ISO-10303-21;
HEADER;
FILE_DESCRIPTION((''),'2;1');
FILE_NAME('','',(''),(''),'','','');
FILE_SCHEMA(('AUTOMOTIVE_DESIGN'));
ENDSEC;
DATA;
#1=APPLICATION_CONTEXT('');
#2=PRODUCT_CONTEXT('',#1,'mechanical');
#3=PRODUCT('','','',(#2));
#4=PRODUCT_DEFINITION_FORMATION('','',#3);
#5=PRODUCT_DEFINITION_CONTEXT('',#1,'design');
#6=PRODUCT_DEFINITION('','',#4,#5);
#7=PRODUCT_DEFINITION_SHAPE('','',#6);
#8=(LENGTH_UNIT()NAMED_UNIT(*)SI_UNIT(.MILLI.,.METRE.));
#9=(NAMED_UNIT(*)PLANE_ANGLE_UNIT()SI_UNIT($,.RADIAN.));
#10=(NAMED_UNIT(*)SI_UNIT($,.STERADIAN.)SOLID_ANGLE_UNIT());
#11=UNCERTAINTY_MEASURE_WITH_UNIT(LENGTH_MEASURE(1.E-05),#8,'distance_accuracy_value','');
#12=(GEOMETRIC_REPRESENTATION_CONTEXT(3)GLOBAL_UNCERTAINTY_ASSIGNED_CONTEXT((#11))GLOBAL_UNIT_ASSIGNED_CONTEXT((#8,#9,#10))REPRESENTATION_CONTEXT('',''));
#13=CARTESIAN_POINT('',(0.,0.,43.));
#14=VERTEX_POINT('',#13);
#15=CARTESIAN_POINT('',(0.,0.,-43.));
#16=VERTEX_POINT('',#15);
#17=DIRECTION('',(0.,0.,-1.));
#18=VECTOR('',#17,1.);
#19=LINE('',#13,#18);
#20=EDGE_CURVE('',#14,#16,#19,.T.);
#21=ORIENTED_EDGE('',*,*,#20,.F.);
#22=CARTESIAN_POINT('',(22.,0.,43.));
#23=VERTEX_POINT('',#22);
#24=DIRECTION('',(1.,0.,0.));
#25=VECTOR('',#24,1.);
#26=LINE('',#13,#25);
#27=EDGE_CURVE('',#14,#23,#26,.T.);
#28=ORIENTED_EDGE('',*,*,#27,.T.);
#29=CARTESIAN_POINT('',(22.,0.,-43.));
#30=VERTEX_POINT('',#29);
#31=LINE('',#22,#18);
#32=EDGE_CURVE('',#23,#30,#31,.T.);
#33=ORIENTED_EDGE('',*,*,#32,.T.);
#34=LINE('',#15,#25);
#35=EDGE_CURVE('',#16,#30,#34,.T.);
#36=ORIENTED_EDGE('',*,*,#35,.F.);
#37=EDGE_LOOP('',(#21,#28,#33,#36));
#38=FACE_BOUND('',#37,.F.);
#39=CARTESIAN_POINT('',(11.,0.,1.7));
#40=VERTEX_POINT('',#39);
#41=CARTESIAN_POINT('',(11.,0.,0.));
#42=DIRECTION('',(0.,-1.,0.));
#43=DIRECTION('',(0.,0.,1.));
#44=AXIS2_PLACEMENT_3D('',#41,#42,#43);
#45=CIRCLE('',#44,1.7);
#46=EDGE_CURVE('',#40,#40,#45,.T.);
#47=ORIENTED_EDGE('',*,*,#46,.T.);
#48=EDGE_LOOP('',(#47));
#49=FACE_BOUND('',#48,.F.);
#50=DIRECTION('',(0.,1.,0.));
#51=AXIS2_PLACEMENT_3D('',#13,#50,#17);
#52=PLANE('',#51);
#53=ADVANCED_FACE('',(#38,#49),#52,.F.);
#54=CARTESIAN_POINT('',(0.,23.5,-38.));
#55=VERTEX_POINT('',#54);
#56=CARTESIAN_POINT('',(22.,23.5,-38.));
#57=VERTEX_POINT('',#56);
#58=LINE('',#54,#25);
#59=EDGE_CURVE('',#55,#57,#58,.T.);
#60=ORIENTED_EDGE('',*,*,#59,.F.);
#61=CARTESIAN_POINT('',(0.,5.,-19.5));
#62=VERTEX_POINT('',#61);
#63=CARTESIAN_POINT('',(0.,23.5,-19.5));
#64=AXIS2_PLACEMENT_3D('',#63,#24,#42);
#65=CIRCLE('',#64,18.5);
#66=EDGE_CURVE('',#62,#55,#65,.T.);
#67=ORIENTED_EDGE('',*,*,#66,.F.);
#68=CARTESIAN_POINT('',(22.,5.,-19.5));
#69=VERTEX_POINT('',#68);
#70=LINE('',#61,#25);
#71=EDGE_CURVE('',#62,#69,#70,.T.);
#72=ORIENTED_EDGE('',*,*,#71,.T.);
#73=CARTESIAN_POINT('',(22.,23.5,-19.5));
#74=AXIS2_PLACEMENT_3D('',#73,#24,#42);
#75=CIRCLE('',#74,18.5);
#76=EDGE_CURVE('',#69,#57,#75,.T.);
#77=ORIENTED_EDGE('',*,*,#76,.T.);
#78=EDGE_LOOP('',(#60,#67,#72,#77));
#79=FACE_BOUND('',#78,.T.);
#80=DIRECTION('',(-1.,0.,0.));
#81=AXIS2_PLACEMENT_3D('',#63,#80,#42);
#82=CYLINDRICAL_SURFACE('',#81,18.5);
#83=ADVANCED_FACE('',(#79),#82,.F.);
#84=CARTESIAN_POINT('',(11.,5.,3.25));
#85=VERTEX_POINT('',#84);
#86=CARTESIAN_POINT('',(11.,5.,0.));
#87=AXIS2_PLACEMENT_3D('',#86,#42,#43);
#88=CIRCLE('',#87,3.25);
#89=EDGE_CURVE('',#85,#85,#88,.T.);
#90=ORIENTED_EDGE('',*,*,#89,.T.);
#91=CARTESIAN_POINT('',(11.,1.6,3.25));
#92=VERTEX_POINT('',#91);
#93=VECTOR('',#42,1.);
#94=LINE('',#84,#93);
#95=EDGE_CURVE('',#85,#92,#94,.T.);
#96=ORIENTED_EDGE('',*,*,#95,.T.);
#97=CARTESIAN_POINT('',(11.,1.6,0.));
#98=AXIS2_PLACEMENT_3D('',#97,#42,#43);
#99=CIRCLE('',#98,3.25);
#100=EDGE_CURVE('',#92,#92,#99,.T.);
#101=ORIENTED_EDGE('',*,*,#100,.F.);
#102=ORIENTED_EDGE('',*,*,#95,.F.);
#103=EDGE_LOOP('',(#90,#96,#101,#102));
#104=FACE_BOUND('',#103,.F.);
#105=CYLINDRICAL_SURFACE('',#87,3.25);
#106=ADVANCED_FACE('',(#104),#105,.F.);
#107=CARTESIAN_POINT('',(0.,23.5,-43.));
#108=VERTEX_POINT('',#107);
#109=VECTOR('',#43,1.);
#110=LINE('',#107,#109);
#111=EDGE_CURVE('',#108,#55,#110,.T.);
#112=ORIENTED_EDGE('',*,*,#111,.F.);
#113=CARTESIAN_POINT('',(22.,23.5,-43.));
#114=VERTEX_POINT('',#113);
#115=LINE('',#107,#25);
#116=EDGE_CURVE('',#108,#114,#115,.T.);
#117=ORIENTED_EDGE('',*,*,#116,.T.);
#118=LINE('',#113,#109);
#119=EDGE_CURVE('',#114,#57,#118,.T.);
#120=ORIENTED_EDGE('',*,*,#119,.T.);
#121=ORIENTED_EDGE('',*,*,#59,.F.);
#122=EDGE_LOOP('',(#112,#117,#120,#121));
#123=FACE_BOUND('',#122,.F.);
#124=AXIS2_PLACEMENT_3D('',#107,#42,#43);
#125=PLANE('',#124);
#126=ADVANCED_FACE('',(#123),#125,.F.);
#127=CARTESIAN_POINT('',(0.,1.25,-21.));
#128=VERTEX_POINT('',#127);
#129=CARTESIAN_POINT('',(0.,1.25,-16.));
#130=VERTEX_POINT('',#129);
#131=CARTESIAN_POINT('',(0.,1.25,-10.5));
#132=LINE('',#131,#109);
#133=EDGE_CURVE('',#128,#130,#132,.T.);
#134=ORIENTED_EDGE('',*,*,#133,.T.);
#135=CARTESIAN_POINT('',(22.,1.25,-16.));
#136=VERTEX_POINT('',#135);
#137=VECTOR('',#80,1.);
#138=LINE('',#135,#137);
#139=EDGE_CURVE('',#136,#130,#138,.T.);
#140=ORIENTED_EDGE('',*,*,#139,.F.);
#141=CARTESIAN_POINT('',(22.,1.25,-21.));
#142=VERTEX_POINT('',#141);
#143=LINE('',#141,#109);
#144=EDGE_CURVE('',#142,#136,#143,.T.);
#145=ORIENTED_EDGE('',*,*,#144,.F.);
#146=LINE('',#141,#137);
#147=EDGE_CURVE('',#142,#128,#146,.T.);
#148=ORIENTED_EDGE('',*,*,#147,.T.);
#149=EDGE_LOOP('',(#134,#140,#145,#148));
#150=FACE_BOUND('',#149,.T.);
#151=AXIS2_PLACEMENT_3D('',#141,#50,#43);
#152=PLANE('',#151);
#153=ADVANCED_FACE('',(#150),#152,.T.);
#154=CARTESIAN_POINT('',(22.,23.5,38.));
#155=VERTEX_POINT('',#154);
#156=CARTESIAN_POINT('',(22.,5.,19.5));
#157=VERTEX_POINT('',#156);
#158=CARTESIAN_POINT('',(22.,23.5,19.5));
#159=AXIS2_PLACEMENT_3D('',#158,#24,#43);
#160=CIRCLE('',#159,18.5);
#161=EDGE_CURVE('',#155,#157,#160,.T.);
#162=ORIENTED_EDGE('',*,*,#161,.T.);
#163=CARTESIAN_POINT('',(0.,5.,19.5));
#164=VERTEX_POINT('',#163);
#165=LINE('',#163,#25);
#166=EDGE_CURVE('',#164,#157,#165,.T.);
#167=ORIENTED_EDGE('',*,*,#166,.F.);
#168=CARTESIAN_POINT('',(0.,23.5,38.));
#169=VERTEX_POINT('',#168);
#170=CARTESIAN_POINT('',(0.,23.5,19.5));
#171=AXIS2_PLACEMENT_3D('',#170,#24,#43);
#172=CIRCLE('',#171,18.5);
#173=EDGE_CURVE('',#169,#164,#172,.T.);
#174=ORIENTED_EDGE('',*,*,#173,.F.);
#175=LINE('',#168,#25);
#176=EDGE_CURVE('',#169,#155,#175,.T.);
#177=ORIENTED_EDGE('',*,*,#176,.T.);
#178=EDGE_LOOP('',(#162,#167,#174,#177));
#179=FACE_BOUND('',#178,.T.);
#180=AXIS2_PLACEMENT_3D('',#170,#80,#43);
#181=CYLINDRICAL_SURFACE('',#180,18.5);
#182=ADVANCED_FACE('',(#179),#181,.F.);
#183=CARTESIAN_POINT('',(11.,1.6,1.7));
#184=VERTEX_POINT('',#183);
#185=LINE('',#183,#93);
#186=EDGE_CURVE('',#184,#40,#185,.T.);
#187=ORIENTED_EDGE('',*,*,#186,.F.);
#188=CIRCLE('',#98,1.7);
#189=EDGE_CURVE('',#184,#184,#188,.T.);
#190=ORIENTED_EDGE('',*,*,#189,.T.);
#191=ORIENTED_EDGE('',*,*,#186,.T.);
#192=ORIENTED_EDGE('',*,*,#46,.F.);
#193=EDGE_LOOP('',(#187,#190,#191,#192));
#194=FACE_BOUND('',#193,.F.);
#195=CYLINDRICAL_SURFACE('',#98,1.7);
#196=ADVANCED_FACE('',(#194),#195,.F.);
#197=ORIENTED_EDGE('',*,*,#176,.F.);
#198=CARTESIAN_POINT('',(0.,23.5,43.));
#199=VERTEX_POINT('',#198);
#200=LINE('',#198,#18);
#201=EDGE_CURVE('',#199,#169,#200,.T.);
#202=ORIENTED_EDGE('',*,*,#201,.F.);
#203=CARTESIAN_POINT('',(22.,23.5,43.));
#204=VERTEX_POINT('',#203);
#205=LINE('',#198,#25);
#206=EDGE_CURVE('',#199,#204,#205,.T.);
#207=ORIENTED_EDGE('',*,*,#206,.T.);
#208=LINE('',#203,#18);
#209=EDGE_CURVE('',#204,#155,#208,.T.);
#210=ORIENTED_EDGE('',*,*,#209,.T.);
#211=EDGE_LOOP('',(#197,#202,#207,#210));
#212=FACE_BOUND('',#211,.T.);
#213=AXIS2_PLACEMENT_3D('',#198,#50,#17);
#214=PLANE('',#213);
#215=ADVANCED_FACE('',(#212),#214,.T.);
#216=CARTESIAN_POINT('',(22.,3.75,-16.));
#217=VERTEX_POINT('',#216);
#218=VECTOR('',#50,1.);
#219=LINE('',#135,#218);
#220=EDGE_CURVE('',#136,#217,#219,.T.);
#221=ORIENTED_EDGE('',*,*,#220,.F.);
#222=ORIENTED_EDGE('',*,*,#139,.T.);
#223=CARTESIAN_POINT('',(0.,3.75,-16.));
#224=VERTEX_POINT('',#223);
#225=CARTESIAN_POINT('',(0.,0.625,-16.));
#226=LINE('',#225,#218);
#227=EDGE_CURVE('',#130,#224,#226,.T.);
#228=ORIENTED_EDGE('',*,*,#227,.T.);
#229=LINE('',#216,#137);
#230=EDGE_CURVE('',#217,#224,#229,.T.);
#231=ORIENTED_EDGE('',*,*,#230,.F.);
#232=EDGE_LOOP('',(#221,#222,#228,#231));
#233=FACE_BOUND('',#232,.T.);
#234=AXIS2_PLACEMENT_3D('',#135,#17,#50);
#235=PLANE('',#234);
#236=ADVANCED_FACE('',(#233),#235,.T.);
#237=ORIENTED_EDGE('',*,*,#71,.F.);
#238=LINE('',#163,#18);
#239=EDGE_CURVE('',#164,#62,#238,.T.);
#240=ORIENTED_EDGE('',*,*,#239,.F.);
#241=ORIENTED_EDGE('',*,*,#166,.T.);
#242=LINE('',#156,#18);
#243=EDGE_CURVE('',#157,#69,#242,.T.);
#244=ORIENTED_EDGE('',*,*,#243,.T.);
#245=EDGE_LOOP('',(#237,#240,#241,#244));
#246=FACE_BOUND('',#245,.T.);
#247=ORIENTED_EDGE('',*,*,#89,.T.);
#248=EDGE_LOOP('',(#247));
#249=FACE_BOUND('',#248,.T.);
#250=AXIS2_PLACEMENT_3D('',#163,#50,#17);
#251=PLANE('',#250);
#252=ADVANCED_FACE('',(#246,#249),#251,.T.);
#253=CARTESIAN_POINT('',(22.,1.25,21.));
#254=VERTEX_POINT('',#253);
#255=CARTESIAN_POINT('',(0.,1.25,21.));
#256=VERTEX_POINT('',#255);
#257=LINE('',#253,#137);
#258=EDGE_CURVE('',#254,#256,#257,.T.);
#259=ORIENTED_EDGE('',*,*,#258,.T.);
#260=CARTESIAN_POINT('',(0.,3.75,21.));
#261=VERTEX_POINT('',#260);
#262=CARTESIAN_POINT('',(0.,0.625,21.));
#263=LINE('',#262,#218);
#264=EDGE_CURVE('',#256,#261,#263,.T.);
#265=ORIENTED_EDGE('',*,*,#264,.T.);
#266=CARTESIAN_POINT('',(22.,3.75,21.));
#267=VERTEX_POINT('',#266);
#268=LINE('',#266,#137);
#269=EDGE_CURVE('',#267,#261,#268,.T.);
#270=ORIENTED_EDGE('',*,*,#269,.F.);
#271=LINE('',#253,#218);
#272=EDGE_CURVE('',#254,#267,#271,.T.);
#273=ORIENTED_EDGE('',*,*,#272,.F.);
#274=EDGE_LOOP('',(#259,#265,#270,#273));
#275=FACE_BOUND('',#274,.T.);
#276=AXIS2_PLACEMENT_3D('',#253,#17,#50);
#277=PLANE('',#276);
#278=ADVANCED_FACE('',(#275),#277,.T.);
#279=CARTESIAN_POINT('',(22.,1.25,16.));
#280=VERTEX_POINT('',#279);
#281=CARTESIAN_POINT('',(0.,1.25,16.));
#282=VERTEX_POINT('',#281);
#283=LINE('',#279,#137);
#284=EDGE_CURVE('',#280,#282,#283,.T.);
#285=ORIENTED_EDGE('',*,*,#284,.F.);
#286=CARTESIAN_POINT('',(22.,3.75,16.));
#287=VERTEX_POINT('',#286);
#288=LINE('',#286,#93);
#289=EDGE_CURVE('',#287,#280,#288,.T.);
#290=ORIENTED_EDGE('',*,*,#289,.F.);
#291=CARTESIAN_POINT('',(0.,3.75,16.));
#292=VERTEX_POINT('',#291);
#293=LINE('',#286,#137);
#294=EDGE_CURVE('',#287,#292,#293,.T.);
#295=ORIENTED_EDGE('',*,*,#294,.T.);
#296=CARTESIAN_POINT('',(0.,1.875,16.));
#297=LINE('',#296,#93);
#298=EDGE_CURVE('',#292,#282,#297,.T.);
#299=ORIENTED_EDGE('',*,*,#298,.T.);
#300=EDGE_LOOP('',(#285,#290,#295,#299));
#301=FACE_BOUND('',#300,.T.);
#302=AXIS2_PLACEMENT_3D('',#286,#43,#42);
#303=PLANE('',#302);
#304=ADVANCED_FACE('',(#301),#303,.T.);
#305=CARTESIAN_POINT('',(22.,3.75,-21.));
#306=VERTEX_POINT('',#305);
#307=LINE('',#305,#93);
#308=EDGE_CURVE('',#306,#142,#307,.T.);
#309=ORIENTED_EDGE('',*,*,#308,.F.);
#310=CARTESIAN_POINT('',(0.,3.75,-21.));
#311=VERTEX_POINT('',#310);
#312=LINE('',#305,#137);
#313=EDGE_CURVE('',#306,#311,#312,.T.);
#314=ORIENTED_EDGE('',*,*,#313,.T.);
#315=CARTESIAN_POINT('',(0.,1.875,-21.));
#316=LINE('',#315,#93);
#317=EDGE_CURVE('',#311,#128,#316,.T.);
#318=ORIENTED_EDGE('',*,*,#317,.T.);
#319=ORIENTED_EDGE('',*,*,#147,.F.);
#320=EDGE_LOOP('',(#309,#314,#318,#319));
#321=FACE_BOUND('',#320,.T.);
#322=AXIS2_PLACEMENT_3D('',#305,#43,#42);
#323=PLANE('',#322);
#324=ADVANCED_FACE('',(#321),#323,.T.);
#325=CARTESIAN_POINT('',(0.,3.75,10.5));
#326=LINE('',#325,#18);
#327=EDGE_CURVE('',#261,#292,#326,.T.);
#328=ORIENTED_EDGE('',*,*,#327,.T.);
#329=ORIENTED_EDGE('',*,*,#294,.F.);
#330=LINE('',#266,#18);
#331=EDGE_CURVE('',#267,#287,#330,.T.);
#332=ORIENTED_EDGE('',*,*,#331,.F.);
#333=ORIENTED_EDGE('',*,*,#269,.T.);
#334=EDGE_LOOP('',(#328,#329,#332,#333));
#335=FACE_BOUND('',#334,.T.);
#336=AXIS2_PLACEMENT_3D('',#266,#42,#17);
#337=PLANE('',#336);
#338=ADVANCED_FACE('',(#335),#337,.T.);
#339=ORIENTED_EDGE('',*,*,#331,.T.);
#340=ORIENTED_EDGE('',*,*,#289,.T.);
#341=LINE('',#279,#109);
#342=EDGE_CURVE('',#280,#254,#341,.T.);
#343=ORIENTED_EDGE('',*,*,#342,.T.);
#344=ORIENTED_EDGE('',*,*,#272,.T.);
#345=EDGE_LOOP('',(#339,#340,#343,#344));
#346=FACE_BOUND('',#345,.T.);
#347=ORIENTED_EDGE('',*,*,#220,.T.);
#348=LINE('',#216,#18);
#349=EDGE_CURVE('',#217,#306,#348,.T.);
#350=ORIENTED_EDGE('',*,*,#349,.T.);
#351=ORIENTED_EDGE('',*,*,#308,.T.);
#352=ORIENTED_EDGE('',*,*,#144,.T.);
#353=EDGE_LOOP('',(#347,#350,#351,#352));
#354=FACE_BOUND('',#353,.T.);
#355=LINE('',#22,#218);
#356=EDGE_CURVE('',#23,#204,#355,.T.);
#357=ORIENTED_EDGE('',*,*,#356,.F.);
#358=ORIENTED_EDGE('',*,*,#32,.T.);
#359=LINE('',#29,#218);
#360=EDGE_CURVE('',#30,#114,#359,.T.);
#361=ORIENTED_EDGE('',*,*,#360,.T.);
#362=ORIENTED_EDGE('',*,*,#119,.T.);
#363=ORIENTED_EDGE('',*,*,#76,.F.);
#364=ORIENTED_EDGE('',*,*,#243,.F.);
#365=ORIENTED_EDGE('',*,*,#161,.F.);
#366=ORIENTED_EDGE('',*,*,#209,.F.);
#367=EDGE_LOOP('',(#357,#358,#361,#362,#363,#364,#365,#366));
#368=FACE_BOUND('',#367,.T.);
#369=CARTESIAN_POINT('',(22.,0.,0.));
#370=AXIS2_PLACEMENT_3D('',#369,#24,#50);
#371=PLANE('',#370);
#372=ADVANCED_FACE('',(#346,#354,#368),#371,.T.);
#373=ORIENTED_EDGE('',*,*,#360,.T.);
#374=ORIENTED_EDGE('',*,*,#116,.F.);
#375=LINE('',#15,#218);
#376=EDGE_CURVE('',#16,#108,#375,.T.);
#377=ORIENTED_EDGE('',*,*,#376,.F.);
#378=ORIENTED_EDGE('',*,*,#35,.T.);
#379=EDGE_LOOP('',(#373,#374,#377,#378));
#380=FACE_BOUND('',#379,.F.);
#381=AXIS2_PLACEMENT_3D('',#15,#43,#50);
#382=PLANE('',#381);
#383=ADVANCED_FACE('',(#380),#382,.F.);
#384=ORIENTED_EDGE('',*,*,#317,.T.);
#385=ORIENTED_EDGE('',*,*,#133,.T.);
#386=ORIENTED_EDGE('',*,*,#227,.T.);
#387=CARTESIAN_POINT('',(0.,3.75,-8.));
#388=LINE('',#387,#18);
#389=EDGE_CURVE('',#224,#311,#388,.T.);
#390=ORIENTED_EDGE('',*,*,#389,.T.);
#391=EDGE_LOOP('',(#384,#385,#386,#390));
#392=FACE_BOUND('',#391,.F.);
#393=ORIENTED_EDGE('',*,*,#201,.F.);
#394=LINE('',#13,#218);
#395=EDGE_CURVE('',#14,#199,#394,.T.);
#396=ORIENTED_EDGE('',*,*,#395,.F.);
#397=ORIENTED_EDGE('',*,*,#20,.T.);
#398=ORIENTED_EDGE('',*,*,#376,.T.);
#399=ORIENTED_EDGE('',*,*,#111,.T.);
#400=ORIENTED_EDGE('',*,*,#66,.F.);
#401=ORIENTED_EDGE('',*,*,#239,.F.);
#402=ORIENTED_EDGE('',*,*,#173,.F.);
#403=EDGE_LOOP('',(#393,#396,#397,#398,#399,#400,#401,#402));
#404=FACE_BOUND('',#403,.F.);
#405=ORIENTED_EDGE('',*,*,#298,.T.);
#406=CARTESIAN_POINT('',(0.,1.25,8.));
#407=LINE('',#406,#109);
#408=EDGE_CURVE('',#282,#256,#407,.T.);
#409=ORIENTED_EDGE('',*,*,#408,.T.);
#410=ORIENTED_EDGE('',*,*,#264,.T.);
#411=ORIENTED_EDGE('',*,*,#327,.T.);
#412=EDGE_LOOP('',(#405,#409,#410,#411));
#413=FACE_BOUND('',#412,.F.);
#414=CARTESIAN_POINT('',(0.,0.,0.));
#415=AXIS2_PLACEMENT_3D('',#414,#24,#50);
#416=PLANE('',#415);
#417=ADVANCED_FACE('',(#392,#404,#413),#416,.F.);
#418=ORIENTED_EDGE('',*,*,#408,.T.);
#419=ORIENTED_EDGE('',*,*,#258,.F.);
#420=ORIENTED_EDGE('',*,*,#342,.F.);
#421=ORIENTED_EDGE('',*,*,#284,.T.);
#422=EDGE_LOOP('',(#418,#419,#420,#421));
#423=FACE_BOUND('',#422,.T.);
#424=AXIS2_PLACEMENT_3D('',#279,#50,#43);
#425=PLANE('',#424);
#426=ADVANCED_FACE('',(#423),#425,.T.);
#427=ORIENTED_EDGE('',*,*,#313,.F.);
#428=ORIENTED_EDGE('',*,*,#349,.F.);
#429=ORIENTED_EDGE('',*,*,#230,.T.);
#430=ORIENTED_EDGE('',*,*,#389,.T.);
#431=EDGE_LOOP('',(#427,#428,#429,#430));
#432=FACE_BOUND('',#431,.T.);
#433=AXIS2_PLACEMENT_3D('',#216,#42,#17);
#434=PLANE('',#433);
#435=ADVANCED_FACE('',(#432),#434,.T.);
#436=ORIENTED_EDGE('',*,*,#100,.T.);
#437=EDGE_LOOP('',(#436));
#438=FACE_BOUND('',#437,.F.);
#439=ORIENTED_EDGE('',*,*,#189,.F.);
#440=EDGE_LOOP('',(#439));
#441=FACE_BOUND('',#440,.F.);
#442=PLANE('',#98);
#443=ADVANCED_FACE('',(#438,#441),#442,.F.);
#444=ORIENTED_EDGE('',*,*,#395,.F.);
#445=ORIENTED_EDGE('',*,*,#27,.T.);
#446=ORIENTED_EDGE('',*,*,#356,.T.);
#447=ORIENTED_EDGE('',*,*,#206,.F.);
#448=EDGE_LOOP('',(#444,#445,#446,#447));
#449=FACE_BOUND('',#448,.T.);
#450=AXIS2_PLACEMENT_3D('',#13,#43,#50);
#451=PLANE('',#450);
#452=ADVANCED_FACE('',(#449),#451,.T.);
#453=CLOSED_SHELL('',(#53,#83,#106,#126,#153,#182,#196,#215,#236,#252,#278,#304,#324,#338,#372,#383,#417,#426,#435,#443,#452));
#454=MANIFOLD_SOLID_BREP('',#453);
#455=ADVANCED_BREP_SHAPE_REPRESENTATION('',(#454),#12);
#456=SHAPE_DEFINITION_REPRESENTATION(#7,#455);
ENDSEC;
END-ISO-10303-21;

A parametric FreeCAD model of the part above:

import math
import FreeCAD as App
import Part
import Sketcher

V = App.Vector
Q = App.Units.Quantity

doc = App.newDocument("Part")
body = doc.addObject("PartDesign::Body", "Body")

# Sketch on YZ plane
sketch1 = body.newObject("Sketcher::SketchObject", "Sketch")
sketch1.AttachmentSupport = (doc.getObject("YZ_Plane"), [""])
sketch1.MapMode = "FlatFace"
sketch1.addGeometry([
    Part.LineSegment(V(24, 43, 0), V(0, 43, 0)),  # 0
    Part.LineSegment(V(0, 43, 0), V(0, -43, 0)),  # 1
    Part.LineSegment(V(0, -43, 0), V(24, -43, 0)),  # 2
    Part.LineSegment(V(24, -43, 0), V(24, -38, 0)),  # 3
    Part.ArcOfCircle(Part.Circle(V(24, -20, 0), V(0, 0, 1), 18), math.radians(180), math.radians(270)),  # 4
    Part.LineSegment(V(5, -20, 0), V(5, 20, 0)),  # 5
    Part.ArcOfCircle(Part.Circle(V(24, 20, 0), V(0, 0, 1), 18), math.radians(90), math.radians(180)),  # 6
    Part.LineSegment(V(24, 38, 0), V(24, 43, 0)),  # 7
], False)
sketch1.addConstraint([
    Sketcher.Constraint("Coincident", 0, 2, 1, 1),
    Sketcher.Constraint("Coincident", 1, 2, 2, 1),
    Sketcher.Constraint("Coincident", 2, 2, 3, 1),
    Sketcher.Constraint("Coincident", 3, 2, 4, 2),
    Sketcher.Constraint("Tangent", 4, 1, 5, 1),
    Sketcher.Constraint("Tangent", 5, 2, 6, 2),
    Sketcher.Constraint("Coincident", 6, 1, 7, 1),
    Sketcher.Constraint("Coincident", 7, 2, 0, 1),
    Sketcher.Constraint("Horizontal", 0),
    Sketcher.Constraint("Vertical", 1),
    Sketcher.Constraint("Horizontal", 2),
    Sketcher.Constraint("Vertical", 3),
    Sketcher.Constraint("Vertical", 5),
    Sketcher.Constraint("Vertical", 7),
    Sketcher.Constraint("Equal", 4, 6),
    Sketcher.Constraint("Symmetric", 0, 2, 1, 2, -1, 1),
    Sketcher.Constraint("Symmetric", 3, 2, 6, 1, -1),
    Sketcher.Constraint("Vertical", 6, 3, 2, 2),
    Sketcher.Constraint("Radius", 4, Q("18.5 mm")),
    Sketcher.Constraint("DistanceY", 3, 1, 3, 2, Q("5 mm")),
    Sketcher.Constraint("DistanceY", 5, 1, 5, 2, Q("39 mm")),
    Sketcher.Constraint("DistanceX", -1, 1, 4, 1, Q("5 mm")),
])
pad1 = body.newObject("PartDesign::Pad", "Pad")
pad1.Profile = sketch1
pad1.Length = 22

# Sketch on XZ plane
sketch2 = body.newObject("Sketcher::SketchObject", "Sketch001")
sketch2.AttachmentSupport = (doc.getObject("XZ_Plane"), [""])
sketch2.MapMode = "FlatFace"
sketch2.AttachmentOffset = App.Placement(V(0, 0, -5), App.Rotation())
sketch2.addGeometry(Part.Circle(V(11, 0, 0), V(0, 0, 1), 1.7), False)
sketch2.addConstraint([
    Sketcher.Constraint("PointOnObject", 0, 3, -1),
    Sketcher.Constraint("Diameter", 0, Q("3.4 mm")),
    Sketcher.Constraint("DistanceX", -1, 1, 0, 3, Q("11 mm")),
])
doc.recompute()
hole = body.newObject("PartDesign::Hole", "Hole")
hole.Profile = sketch2
hole.ThreadType = "None"
hole.Diameter = 3.4
hole.DepthType = "ThroughAll"
hole.HoleCutType = "Counterbore"
hole.HoleCutDiameter = 6.5
hole.HoleCutDepth = 3.4
hole.Reversed = True

# Sketch on YZ plane
sketch3 = body.newObject("Sketcher::SketchObject", "Sketch002")
sketch3.AttachmentSupport = (doc.getObject("YZ_Plane"), [""])
sketch3.MapMode = "FlatFace"
sketch3.AttachmentOffset = App.Placement(V(0, 0, 22), App.Rotation())
sketch3.addGeometry([
    Part.LineSegment(V(3.8, 16, 0), V(3.8, 21, 0)),  # 0
    Part.LineSegment(V(3.8, 21, 0), V(1.2, 21, 0)),  # 1
    Part.LineSegment(V(1.2, 21, 0), V(1.2, 16, 0)),  # 2
    Part.LineSegment(V(1.2, 16, 0), V(3.8, 16, 0)),  # 3
    Part.LineSegment(V(3.8, -21, 0), V(3.8, -16, 0)),  # 4
    Part.LineSegment(V(3.8, -16, 0), V(1.2, -16, 0)),  # 5
    Part.LineSegment(V(1.2, -16, 0), V(1.2, -21, 0)),  # 6
    Part.LineSegment(V(1.2, -21, 0), V(3.8, -21, 0)),  # 7
], False)
sketch3.addConstraint([
    Sketcher.Constraint("Coincident", 0, 2, 1, 1),
    Sketcher.Constraint("Coincident", 1, 2, 2, 1),
    Sketcher.Constraint("Coincident", 2, 2, 3, 1),
    Sketcher.Constraint("Coincident", 3, 2, 0, 1),
    Sketcher.Constraint("Coincident", 4, 2, 5, 1),
    Sketcher.Constraint("Coincident", 5, 2, 6, 1),
    Sketcher.Constraint("Coincident", 6, 2, 7, 1),
    Sketcher.Constraint("Coincident", 7, 2, 4, 1),
    Sketcher.Constraint("Vertical", 0),
    Sketcher.Constraint("Horizontal", 1),
    Sketcher.Constraint("Vertical", 2),
    Sketcher.Constraint("Horizontal", 3),
    Sketcher.Constraint("Vertical", 4),
    Sketcher.Constraint("Horizontal", 5),
    Sketcher.Constraint("Vertical", 6),
    Sketcher.Constraint("Horizontal", 7),
    Sketcher.Constraint("Symmetric", 3, 2, 4, 2, -1),
    Sketcher.Constraint("Symmetric", 1, 2, 6, 2, -1),
    Sketcher.Constraint("DistanceY", 0, 1, 0, 2, Q("5 mm")),
    Sketcher.Constraint("DistanceX", 1, 2, 1, 1, Q("2.5 mm")),
    Sketcher.Constraint("DistanceY", 4, 2, 3, 2, Q("32 mm")),
    Sketcher.Constraint("DistanceX", -1, 1, 0, 2, Q("3.75 mm")),
])
pocket1 = body.newObject("PartDesign::Pocket", "Pocket")
pocket1.Profile = sketch3
pocket1.Type = "ThroughAll"

doc.recompute()
